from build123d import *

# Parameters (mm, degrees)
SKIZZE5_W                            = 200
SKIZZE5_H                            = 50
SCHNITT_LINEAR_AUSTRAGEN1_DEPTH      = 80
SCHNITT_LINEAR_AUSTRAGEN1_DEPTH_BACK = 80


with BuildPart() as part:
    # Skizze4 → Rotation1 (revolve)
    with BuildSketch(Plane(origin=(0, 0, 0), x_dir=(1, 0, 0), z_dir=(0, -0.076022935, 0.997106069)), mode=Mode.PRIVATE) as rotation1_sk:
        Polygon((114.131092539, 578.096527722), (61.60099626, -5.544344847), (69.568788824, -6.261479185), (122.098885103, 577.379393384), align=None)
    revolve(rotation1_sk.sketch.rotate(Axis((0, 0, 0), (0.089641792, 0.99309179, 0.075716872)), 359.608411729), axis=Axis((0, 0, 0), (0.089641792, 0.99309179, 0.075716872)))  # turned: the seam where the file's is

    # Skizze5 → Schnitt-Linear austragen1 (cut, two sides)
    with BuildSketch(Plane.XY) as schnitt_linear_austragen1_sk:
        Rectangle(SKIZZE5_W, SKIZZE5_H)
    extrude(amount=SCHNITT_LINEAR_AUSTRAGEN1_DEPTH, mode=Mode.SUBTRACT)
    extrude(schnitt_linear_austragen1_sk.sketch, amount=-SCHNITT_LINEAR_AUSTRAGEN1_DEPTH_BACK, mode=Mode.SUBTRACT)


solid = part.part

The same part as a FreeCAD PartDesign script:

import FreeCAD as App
import Part
import Sketcher

V = App.Vector


def add_polygon(sketch, points):
    """Adds a closed chain of lines whose ends are joined by coincident constraints."""
    first, n = sketch.GeometryCount, len(points)
    for a, b in zip(points, points[1:] + points[:1]):
        sketch.addGeometry(Part.LineSegment(App.Vector(*a, 0), App.Vector(*b, 0)), False)
    for i in range(n):
        sketch.addConstraint(Sketcher.Constraint("Coincident", first + i, 2, first + (i + 1) % n, 1))

doc = App.newDocument("Part")
body = doc.addObject("PartDesign::Body", "Body")

# Sketch on an angled plane
sketch1 = body.newObject("Sketcher::SketchObject", "Sketch")
sketch1.Placement = App.Placement(V(0, 0, 0), App.Rotation(V(1, 0, 0), V(0, 0.997106069, 0.076022935), V(0, -0.076022935, 0.997106069), "ZXY"))
add_polygon(sketch1, [(114.131093, 578.096527), (61.600996, -5.544345), (69.568789, -6.261479), (122.098885, 577.379393)])  # lines 0-3
sketch1.addGeometry(Part.LineSegment(V(0, 0, 0), V(52.530096, 583.640873, 0)), True)  # axis
sketch1.addConstraint([
    Sketcher.Constraint("Coincident", 4, 1, -1, 1),
    Sketcher.Constraint("Perpendicular", 0, 1),
    Sketcher.Constraint("Perpendicular", 1, 2),
    Sketcher.Constraint("Perpendicular", 2, 3),
    Sketcher.Constraint("Perpendicular", 3, 4),
    Sketcher.Constraint("Equal", 2, 4),
    Sketcher.Constraint("Distance", 1, 8.0),
    Sketcher.Constraint("DistanceX", 4, 2, 0, 2, 9.0709),
    Sketcher.Constraint("DistanceX", -1, 1, 1, 2, 69.568789),
    Sketcher.Constraint("DistanceY", 1, 2, -1, 1, 6.261479),
    Sketcher.Constraint("DistanceY", 1, 2, 4, 2, 589.902352),
])
revolution = body.newObject("PartDesign::Revolution", "Revolution")
revolution.Profile = sketch1
revolution.ReferenceAxis = (sketch1, ["Axis0"])
revolution.Angle = 360

# Sketch on XY plane
sketch2 = body.newObject("Sketcher::SketchObject", "Sketch001")
sketch2.AttachmentSupport = (doc.getObject("XY_Plane"), [""])
sketch2.MapMode = "FlatFace"
add_polygon(sketch2, [(-100, 25), (-100, -25), (100, -25), (100, 25)])  # lines 0-3
sketch2.addConstraint([
    Sketcher.Constraint("Vertical", 0),
    Sketcher.Constraint("Horizontal", 1),
    Sketcher.Constraint("Vertical", 2),
    Sketcher.Constraint("Horizontal", 3),
    Sketcher.Constraint("Symmetric", 0, 2, 2, 2, -1, 1),
    Sketcher.Constraint("DistanceX", 1, 1, 1, 2, 200.0),
    Sketcher.Constraint("DistanceY", 0, 2, 0, 1, 50.0),
])
pocket1 = body.newObject("PartDesign::Pocket", "Pocket")
pocket1.Profile = sketch2
pocket1.Type = "ThroughAll"
pocket1.Midplane = True

doc.recompute()
